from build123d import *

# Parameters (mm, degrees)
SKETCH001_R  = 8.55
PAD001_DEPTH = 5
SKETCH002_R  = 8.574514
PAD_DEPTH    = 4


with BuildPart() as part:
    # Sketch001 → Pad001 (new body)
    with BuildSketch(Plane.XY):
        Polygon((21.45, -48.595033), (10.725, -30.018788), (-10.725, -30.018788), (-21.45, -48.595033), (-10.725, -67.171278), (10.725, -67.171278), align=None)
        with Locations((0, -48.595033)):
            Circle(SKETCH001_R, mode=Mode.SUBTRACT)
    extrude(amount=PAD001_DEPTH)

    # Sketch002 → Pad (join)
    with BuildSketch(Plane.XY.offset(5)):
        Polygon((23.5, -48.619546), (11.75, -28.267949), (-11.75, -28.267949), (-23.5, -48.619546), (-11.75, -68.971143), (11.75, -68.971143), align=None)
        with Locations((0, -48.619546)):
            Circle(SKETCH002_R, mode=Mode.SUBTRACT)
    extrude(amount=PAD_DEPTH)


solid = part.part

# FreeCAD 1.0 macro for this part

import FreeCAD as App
import Part
import Sketcher
from FreeCAD import Vector
Q = App.Units.Quantity

doc = App.newDocument("Part")
body = doc.addObject("PartDesign::Body", "Body")

sketch1 = body.newObject("Sketcher::SketchObject", "Sketch")
sketch1.AttachmentSupport = (doc.getObject("XY_Plane"), [""])
sketch1.MapMode = "FlatFace"
sketch1.addGeometry(Part.LineSegment(Vector(21.45, -48.595033, 0), Vector(10.725, -30.018788, 0)), False)
sketch1.addGeometry(Part.LineSegment(Vector(10.725, -30.018788, 0), Vector(-10.725, -30.018788, 0)), False)
sketch1.addGeometry(Part.LineSegment(Vector(-10.725, -30.018788, 0), Vector(-21.45, -48.595033, 0)), False)
sketch1.addGeometry(Part.LineSegment(Vector(-21.45, -48.595033, 0), Vector(-10.725, -67.171278, 0)), False)
sketch1.addGeometry(Part.LineSegment(Vector(-10.725, -67.171278, 0), Vector(10.725, -67.171278, 0)), False)
sketch1.addGeometry(Part.LineSegment(Vector(10.725, -67.171278, 0), Vector(21.45, -48.595033, 0)), False)
sketch1.addGeometry(Part.Circle(Vector(0, -48.595033, 0), Vector(0, 0, 1), 8.55), False)
sketch1.addConstraint(Sketcher.Constraint("Coincident", 0, 2, 1, 1))
sketch1.addConstraint(Sketcher.Constraint("Coincident", 1, 2, 2, 1))
sketch1.addConstraint(Sketcher.Constraint("Coincident", 2, 2, 3, 1))
sketch1.addConstraint(Sketcher.Constraint("Coincident", 3, 2, 4, 1))
sketch1.addConstraint(Sketcher.Constraint("Coincident", 4, 2, 5, 1))
sketch1.addConstraint(Sketcher.Constraint("Coincident", 5, 2, 0, 1))
sketch1.addConstraint(Sketcher.Constraint("Horizontal", 1))
sketch1.addConstraint(Sketcher.Constraint("Horizontal", 4))
sketch1.addConstraint(Sketcher.Constraint("Symmetric", 2, 2, 5, 2, -2))
sketch1.addConstraint(Sketcher.Constraint("PointOnObject", 6, 3, -2))
sketch1.addConstraint(Sketcher.Constraint("Parallel", 0, 3))
sketch1.addConstraint(Sketcher.Constraint("Parallel", 2, 5))
sketch1.addConstraint(Sketcher.Constraint("Horizontal", 6, 3, 2, 2))
sketch1.addConstraint(Sketcher.Constraint("Vertical", 1, 2, 3, 2))
sketch1.addConstraint(Sketcher.Constraint("Vertical", 0, 2, 4, 2))
sketch1.addConstraint(Sketcher.Constraint("Diameter", 6, 17.1))
sketch1.addConstraint(Sketcher.Constraint("Angle", 0, Q("120 deg")))
sketch1.addConstraint(Sketcher.Constraint("DistanceX", 1, 2, 1, 1, 21.45))
sketch1.addConstraint(Sketcher.Constraint("Distance", 0, 21.45))
sketch1.addConstraint(Sketcher.Constraint("DistanceY", 0, 2, -1, 1, 30.018788))
pad1 = body.newObject("PartDesign::Pad", "Pad")
pad1.Profile = sketch1
pad1.Length = 5

sketch2 = body.newObject("Sketcher::SketchObject", "Sketch001")
sketch2.AttachmentSupport = (doc.getObject("XY_Plane"), [""])
sketch2.MapMode = "FlatFace"
sketch2.AttachmentOffset = App.Placement(Vector(0, 0, 5), App.Rotation())
sketch2.addGeometry(Part.LineSegment(Vector(23.5, -48.619546, 0), Vector(11.75, -28.267949, 0)), False)
sketch2.addGeometry(Part.LineSegment(Vector(11.75, -28.267949, 0), Vector(-11.75, -28.267949, 0)), False)
sketch2.addGeometry(Part.LineSegment(Vector(-11.75, -28.267949, 0), Vector(-23.5, -48.619546, 0)), False)
sketch2.addGeometry(Part.LineSegment(Vector(-23.5, -48.619546, 0), Vector(-11.75, -68.971143, 0)), False)
sketch2.addGeometry(Part.LineSegment(Vector(-11.75, -68.971143, 0), Vector(11.75, -68.971143, 0)), False)
sketch2.addGeometry(Part.LineSegment(Vector(11.75, -68.971143, 0), Vector(23.5, -48.619546, 0)), False)
sketch2.addGeometry(Part.Circle(Vector(0, -48.619546, 0), Vector(0, 0, 1), 8.574514), False)
sketch2.addConstraint(Sketcher.Constraint("Coincident", 0, 2, 1, 1))
sketch2.addConstraint(Sketcher.Constraint("Coincident", 1, 2, 2, 1))
sketch2.addConstraint(Sketcher.Constraint("Coincident", 2, 2, 3, 1))
sketch2.addConstraint(Sketcher.Constraint("Coincident", 3, 2, 4, 1))
sketch2.addConstraint(Sketcher.Constraint("Coincident", 4, 2, 5, 1))
sketch2.addConstraint(Sketcher.Constraint("Coincident", 5, 2, 0, 1))
sketch2.addConstraint(Sketcher.Constraint("Horizontal", 1))
sketch2.addConstraint(Sketcher.Constraint("Horizontal", 4))
sketch2.addConstraint(Sketcher.Constraint("Symmetric", 2, 2, 5, 2, -2))
sketch2.addConstraint(Sketcher.Constraint("PointOnObject", 6, 3, -2))
sketch2.addConstraint(Sketcher.Constraint("Parallel", 0, 3))
sketch2.addConstraint(Sketcher.Constraint("Parallel", 2, 5))
sketch2.addConstraint(Sketcher.Constraint("Horizontal", 6, 3, 2, 2))
sketch2.addConstraint(Sketcher.Constraint("Vertical", 1, 2, 3, 2))
sketch2.addConstraint(Sketcher.Constraint("Vertical", 0, 2, 4, 2))
sketch2.addConstraint(Sketcher.Constraint("Angle", 0, Q("120 deg")))
sketch2.addConstraint(Sketcher.Constraint("DistanceX", 1, 2, 1, 1, 23.5))
sketch2.addConstraint(Sketcher.Constraint("Distance", 0, 23.5))
sketch2.addConstraint(Sketcher.Constraint("Diameter", 6, 17.149028))
sketch2.addConstraint(Sketcher.Constraint("DistanceY", 0, 2, -1, 1, 28.267949))
pad2 = body.newObject("PartDesign::Pad", "Pad001")
pad2.Profile = sketch2
pad2.Length = 4

doc.recompute()
